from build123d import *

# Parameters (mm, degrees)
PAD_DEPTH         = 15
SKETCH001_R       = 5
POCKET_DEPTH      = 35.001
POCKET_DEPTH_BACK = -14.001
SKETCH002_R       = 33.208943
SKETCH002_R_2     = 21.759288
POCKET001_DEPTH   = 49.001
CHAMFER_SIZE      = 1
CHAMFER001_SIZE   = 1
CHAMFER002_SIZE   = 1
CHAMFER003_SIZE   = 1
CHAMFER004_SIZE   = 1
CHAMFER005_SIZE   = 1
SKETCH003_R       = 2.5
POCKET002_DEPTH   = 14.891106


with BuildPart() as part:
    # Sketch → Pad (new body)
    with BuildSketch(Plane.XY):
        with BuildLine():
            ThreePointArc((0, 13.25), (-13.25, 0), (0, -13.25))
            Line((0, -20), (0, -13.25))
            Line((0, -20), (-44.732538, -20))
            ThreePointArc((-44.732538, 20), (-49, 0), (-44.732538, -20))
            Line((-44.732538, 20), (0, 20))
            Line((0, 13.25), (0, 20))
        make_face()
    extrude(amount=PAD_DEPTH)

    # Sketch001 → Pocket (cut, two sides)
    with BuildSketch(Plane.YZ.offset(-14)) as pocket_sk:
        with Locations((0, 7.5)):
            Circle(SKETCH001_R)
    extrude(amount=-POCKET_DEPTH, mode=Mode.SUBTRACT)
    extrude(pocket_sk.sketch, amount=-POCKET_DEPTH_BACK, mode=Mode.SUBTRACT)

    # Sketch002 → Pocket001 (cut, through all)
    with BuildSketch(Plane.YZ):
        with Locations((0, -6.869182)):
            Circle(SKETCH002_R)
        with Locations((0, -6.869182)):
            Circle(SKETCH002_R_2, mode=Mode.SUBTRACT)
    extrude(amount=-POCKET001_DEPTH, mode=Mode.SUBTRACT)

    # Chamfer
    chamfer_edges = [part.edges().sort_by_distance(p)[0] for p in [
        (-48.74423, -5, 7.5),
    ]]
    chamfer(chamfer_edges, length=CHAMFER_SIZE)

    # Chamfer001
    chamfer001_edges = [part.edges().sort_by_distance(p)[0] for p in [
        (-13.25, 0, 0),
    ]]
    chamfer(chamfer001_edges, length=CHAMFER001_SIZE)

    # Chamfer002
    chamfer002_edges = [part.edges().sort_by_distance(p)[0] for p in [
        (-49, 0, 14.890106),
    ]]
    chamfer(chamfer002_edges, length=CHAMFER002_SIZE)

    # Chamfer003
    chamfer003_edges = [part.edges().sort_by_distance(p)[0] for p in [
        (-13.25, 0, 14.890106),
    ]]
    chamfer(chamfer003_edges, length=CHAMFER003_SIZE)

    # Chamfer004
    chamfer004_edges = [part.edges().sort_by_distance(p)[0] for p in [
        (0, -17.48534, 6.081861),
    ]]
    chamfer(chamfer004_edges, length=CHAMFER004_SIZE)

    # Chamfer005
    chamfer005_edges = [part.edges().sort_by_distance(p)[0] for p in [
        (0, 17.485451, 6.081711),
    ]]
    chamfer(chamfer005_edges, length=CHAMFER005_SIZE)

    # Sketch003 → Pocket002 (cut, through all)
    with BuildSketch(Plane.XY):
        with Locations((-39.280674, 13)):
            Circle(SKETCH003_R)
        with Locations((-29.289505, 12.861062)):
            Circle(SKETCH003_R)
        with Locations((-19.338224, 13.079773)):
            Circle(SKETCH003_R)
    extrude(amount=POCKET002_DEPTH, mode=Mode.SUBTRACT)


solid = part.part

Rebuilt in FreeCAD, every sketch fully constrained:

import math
import FreeCAD as App
import Part
import Sketcher
Q = App.Units.Quantity


def edges_at(feature, points):
    """Names of the edges that pass closest to the given points."""
    edges = feature.Shape.Edges
    near = lambda p: min(range(len(edges)), key=lambda i: edges[i].distToShape(Part.Vertex(*p))[0])
    return sorted({f"Edge{near(p) + 1}" for p in points})

doc = App.newDocument("Part")
body = doc.addObject("PartDesign::Body", "Body")

# Sketch on XY plane
sketch1 = body.newObject("Sketcher::SketchObject", "Sketch")
sketch1.AttachmentSupport = (doc.getObject("XY_Plane"), [""])
sketch1.MapMode = "FlatFace"
sketch1.addGeometry([
    Part.ArcOfCircle(Part.Circle(App.Vector(0, 0, 0), App.Vector(0, 0, 1), 13.25), math.radians(90), math.radians(270)),  # 0
    Part.LineSegment(App.Vector(0, 13.25, 0), App.Vector(0, 20, 0)),  # 1
    Part.LineSegment(App.Vector(0, 20, 0), App.Vector(-44.732538, 20, 0)),  # 2
    Part.ArcOfCircle(Part.Circle(App.Vector(-0.000005, 0, 0), App.Vector(0, 0, 1), 48.999995), math.radians(155.910491), math.radians(204.089509)),  # 3
    Part.LineSegment(App.Vector(-44.732538, -20, 0), App.Vector(0, -20, 0)),  # 4
    Part.LineSegment(App.Vector(0, -20, 0), App.Vector(0, -13.25, 0)),  # 5
], False)
sketch1.addConstraint([
    Sketcher.Constraint("Coincident", 0, 1, 1, 1),
    Sketcher.Constraint("Coincident", 1, 2, 2, 1),
    Sketcher.Constraint("Coincident", 2, 2, 3, 1),
    Sketcher.Constraint("Coincident", 3, 2, 4, 1),
    Sketcher.Constraint("Coincident", 4, 2, 5, 1),
    Sketcher.Constraint("Coincident", 5, 2, 0, 2),
    Sketcher.Constraint("Vertical", 1),
    Sketcher.Constraint("Horizontal", 2),
    Sketcher.Constraint("Horizontal", 4),
    Sketcher.Constraint("Vertical", 5),
    Sketcher.Constraint("Coincident", 0, 3, -1, 1),
    Sketcher.Constraint("Coincident", 3, 3, -1, 1),
    Sketcher.Constraint("Symmetric", 1, 2, 4, 2, -1, 1),
    Sketcher.Constraint("PointOnObject", 0, 1, -2),
    Sketcher.Constraint("Radius", 0, Q("13.25 mm")),
    Sketcher.Constraint("DistanceY", -1, 1, 1, 2, Q("20 mm")),
    Sketcher.Constraint("Radius", 3, Q("48.999995 mm")),
])
pad1 = body.newObject("PartDesign::Pad", "Pad")
pad1.Profile = sketch1
pad1.Length = 15

# Sketch on YZ plane
sketch2 = body.newObject("Sketcher::SketchObject", "Sketch001")
sketch2.AttachmentSupport = (doc.getObject("YZ_Plane"), [""])
sketch2.MapMode = "FlatFace"
sketch2.AttachmentOffset = App.Placement(App.Vector(0, 0, -14), App.Rotation())
sketch2.addGeometry(Part.Circle(App.Vector(0, 7.5, 0), App.Vector(0, 0, 1), 5), False)
sketch2.addConstraint([
    Sketcher.Constraint("PointOnObject", 0, 3, -2),
    Sketcher.Constraint("Diameter", 0, Q("10 mm")),
    Sketcher.Constraint("DistanceY", -1, 1, 0, 3, Q("7.5 mm")),
])
pocket1 = body.newObject("PartDesign::Pocket", "Pocket")
pocket1.Profile = sketch2
pocket1.Type = "ThroughAll"
pocket1.Midplane = True

# Sketch on YZ plane
sketch3 = body.newObject("Sketcher::SketchObject", "Sketch002")
sketch3.AttachmentSupport = (doc.getObject("YZ_Plane"), [""])
sketch3.MapMode = "FlatFace"
sketch3.addGeometry([
    Part.Circle(App.Vector(0, -6.869182, 0), App.Vector(0, 0, 1), 33.208943),
    Part.Circle(App.Vector(0, -6.869182, 0), App.Vector(0, 0, 1), 21.759288),
], False)
sketch3.addConstraint([
    Sketcher.Constraint("Coincident", 1, 3, 0, 3),
    Sketcher.Constraint("PointOnObject", 0, 3, -2),
    Sketcher.Constraint("Diameter", 0, Q("66.417886 mm")),
    Sketcher.Constraint("Diameter", 1, Q("43.518576 mm")),
    Sketcher.Constraint("DistanceY", 0, 3, -1, 1, Q("6.869182 mm")),
])
pocket2 = body.newObject("PartDesign::Pocket", "Pocket001")
pocket2.Profile = sketch3
pocket2.Type = "ThroughAll"
doc.recompute()

chamfer = body.newObject("PartDesign::Chamfer", "Chamfer")
chamfer.Base = (pocket2, edges_at(pocket2, [(-48.744, -5, 7.5)]))
chamfer.Size = 1
doc.recompute()

chamfer2 = body.newObject("PartDesign::Chamfer", "Chamfer001")
chamfer2.Base = (chamfer, edges_at(chamfer, [(-13.25, 0, 0)]))
chamfer2.Size = 1
doc.recompute()

chamfer3 = body.newObject("PartDesign::Chamfer", "Chamfer002")
chamfer3.Base = (chamfer2, edges_at(chamfer2, [(-49, 0, 14.89)]))
chamfer3.Size = 1
doc.recompute()

chamfer4 = body.newObject("PartDesign::Chamfer", "Chamfer003")
chamfer4.Base = (chamfer3, edges_at(chamfer3, [(-13.25, 0, 14.89)]))
chamfer4.Size = 1
doc.recompute()

chamfer5 = body.newObject("PartDesign::Chamfer", "Chamfer004")
chamfer5.Base = (chamfer4, edges_at(chamfer4, [(0, -17.485, 6.082)]))
chamfer5.Size = 1
doc.recompute()

chamfer6 = body.newObject("PartDesign::Chamfer", "Chamfer005")
chamfer6.Base = (chamfer5, edges_at(chamfer5, [(0, 17.485, 6.082)]))
chamfer6.Size = 1

# Sketch on XY plane
sketch4 = body.newObject("Sketcher::SketchObject", "Sketch003")
sketch4.AttachmentSupport = (doc.getObject("XY_Plane"), [""])
sketch4.MapMode = "FlatFace"
sketch4.addGeometry([
    Part.Circle(App.Vector(-39.280674, 13, 0), App.Vector(0, 0, 1), 2.5),
    Part.Circle(App.Vector(-29.289505, 12.861062, 0), App.Vector(0, 0, 1), 2.5),
    Part.Circle(App.Vector(-19.338224, 13.079773, 0), App.Vector(0, 0, 1), 2.5),
], False)
sketch4.addConstraint([
    Sketcher.Constraint("Equal", 0, 1),
    Sketcher.Constraint("Equal", 1, 2),
    Sketcher.Constraint("Diameter", 0, Q("5 mm")),
    Sketcher.Constraint("DistanceY", -1, 1, 0, 3, Q("13 mm")),
    Sketcher.Constraint("DistanceX", 0, 3, 1, 3, Q("9.991169 mm")),
    Sketcher.Constraint("DistanceX", 1, 3, 2, 3, Q("9.951281 mm")),
    Sketcher.Constraint("DistanceY", 1, 3, 2, 3, Q("0.218711 mm")),
    Sketcher.Constraint("DistanceX", 0, 3, -1, 1, Q("39.280674 mm")),
    Sketcher.Constraint("DistanceY", -1, 1, 1, 3, Q("12.861062 mm")),
])
pocket3 = body.newObject("PartDesign::Pocket", "Pocket002")
pocket3.Profile = sketch4
pocket3.Type = "ThroughAll"
pocket3.Reversed = True

doc.recompute()
